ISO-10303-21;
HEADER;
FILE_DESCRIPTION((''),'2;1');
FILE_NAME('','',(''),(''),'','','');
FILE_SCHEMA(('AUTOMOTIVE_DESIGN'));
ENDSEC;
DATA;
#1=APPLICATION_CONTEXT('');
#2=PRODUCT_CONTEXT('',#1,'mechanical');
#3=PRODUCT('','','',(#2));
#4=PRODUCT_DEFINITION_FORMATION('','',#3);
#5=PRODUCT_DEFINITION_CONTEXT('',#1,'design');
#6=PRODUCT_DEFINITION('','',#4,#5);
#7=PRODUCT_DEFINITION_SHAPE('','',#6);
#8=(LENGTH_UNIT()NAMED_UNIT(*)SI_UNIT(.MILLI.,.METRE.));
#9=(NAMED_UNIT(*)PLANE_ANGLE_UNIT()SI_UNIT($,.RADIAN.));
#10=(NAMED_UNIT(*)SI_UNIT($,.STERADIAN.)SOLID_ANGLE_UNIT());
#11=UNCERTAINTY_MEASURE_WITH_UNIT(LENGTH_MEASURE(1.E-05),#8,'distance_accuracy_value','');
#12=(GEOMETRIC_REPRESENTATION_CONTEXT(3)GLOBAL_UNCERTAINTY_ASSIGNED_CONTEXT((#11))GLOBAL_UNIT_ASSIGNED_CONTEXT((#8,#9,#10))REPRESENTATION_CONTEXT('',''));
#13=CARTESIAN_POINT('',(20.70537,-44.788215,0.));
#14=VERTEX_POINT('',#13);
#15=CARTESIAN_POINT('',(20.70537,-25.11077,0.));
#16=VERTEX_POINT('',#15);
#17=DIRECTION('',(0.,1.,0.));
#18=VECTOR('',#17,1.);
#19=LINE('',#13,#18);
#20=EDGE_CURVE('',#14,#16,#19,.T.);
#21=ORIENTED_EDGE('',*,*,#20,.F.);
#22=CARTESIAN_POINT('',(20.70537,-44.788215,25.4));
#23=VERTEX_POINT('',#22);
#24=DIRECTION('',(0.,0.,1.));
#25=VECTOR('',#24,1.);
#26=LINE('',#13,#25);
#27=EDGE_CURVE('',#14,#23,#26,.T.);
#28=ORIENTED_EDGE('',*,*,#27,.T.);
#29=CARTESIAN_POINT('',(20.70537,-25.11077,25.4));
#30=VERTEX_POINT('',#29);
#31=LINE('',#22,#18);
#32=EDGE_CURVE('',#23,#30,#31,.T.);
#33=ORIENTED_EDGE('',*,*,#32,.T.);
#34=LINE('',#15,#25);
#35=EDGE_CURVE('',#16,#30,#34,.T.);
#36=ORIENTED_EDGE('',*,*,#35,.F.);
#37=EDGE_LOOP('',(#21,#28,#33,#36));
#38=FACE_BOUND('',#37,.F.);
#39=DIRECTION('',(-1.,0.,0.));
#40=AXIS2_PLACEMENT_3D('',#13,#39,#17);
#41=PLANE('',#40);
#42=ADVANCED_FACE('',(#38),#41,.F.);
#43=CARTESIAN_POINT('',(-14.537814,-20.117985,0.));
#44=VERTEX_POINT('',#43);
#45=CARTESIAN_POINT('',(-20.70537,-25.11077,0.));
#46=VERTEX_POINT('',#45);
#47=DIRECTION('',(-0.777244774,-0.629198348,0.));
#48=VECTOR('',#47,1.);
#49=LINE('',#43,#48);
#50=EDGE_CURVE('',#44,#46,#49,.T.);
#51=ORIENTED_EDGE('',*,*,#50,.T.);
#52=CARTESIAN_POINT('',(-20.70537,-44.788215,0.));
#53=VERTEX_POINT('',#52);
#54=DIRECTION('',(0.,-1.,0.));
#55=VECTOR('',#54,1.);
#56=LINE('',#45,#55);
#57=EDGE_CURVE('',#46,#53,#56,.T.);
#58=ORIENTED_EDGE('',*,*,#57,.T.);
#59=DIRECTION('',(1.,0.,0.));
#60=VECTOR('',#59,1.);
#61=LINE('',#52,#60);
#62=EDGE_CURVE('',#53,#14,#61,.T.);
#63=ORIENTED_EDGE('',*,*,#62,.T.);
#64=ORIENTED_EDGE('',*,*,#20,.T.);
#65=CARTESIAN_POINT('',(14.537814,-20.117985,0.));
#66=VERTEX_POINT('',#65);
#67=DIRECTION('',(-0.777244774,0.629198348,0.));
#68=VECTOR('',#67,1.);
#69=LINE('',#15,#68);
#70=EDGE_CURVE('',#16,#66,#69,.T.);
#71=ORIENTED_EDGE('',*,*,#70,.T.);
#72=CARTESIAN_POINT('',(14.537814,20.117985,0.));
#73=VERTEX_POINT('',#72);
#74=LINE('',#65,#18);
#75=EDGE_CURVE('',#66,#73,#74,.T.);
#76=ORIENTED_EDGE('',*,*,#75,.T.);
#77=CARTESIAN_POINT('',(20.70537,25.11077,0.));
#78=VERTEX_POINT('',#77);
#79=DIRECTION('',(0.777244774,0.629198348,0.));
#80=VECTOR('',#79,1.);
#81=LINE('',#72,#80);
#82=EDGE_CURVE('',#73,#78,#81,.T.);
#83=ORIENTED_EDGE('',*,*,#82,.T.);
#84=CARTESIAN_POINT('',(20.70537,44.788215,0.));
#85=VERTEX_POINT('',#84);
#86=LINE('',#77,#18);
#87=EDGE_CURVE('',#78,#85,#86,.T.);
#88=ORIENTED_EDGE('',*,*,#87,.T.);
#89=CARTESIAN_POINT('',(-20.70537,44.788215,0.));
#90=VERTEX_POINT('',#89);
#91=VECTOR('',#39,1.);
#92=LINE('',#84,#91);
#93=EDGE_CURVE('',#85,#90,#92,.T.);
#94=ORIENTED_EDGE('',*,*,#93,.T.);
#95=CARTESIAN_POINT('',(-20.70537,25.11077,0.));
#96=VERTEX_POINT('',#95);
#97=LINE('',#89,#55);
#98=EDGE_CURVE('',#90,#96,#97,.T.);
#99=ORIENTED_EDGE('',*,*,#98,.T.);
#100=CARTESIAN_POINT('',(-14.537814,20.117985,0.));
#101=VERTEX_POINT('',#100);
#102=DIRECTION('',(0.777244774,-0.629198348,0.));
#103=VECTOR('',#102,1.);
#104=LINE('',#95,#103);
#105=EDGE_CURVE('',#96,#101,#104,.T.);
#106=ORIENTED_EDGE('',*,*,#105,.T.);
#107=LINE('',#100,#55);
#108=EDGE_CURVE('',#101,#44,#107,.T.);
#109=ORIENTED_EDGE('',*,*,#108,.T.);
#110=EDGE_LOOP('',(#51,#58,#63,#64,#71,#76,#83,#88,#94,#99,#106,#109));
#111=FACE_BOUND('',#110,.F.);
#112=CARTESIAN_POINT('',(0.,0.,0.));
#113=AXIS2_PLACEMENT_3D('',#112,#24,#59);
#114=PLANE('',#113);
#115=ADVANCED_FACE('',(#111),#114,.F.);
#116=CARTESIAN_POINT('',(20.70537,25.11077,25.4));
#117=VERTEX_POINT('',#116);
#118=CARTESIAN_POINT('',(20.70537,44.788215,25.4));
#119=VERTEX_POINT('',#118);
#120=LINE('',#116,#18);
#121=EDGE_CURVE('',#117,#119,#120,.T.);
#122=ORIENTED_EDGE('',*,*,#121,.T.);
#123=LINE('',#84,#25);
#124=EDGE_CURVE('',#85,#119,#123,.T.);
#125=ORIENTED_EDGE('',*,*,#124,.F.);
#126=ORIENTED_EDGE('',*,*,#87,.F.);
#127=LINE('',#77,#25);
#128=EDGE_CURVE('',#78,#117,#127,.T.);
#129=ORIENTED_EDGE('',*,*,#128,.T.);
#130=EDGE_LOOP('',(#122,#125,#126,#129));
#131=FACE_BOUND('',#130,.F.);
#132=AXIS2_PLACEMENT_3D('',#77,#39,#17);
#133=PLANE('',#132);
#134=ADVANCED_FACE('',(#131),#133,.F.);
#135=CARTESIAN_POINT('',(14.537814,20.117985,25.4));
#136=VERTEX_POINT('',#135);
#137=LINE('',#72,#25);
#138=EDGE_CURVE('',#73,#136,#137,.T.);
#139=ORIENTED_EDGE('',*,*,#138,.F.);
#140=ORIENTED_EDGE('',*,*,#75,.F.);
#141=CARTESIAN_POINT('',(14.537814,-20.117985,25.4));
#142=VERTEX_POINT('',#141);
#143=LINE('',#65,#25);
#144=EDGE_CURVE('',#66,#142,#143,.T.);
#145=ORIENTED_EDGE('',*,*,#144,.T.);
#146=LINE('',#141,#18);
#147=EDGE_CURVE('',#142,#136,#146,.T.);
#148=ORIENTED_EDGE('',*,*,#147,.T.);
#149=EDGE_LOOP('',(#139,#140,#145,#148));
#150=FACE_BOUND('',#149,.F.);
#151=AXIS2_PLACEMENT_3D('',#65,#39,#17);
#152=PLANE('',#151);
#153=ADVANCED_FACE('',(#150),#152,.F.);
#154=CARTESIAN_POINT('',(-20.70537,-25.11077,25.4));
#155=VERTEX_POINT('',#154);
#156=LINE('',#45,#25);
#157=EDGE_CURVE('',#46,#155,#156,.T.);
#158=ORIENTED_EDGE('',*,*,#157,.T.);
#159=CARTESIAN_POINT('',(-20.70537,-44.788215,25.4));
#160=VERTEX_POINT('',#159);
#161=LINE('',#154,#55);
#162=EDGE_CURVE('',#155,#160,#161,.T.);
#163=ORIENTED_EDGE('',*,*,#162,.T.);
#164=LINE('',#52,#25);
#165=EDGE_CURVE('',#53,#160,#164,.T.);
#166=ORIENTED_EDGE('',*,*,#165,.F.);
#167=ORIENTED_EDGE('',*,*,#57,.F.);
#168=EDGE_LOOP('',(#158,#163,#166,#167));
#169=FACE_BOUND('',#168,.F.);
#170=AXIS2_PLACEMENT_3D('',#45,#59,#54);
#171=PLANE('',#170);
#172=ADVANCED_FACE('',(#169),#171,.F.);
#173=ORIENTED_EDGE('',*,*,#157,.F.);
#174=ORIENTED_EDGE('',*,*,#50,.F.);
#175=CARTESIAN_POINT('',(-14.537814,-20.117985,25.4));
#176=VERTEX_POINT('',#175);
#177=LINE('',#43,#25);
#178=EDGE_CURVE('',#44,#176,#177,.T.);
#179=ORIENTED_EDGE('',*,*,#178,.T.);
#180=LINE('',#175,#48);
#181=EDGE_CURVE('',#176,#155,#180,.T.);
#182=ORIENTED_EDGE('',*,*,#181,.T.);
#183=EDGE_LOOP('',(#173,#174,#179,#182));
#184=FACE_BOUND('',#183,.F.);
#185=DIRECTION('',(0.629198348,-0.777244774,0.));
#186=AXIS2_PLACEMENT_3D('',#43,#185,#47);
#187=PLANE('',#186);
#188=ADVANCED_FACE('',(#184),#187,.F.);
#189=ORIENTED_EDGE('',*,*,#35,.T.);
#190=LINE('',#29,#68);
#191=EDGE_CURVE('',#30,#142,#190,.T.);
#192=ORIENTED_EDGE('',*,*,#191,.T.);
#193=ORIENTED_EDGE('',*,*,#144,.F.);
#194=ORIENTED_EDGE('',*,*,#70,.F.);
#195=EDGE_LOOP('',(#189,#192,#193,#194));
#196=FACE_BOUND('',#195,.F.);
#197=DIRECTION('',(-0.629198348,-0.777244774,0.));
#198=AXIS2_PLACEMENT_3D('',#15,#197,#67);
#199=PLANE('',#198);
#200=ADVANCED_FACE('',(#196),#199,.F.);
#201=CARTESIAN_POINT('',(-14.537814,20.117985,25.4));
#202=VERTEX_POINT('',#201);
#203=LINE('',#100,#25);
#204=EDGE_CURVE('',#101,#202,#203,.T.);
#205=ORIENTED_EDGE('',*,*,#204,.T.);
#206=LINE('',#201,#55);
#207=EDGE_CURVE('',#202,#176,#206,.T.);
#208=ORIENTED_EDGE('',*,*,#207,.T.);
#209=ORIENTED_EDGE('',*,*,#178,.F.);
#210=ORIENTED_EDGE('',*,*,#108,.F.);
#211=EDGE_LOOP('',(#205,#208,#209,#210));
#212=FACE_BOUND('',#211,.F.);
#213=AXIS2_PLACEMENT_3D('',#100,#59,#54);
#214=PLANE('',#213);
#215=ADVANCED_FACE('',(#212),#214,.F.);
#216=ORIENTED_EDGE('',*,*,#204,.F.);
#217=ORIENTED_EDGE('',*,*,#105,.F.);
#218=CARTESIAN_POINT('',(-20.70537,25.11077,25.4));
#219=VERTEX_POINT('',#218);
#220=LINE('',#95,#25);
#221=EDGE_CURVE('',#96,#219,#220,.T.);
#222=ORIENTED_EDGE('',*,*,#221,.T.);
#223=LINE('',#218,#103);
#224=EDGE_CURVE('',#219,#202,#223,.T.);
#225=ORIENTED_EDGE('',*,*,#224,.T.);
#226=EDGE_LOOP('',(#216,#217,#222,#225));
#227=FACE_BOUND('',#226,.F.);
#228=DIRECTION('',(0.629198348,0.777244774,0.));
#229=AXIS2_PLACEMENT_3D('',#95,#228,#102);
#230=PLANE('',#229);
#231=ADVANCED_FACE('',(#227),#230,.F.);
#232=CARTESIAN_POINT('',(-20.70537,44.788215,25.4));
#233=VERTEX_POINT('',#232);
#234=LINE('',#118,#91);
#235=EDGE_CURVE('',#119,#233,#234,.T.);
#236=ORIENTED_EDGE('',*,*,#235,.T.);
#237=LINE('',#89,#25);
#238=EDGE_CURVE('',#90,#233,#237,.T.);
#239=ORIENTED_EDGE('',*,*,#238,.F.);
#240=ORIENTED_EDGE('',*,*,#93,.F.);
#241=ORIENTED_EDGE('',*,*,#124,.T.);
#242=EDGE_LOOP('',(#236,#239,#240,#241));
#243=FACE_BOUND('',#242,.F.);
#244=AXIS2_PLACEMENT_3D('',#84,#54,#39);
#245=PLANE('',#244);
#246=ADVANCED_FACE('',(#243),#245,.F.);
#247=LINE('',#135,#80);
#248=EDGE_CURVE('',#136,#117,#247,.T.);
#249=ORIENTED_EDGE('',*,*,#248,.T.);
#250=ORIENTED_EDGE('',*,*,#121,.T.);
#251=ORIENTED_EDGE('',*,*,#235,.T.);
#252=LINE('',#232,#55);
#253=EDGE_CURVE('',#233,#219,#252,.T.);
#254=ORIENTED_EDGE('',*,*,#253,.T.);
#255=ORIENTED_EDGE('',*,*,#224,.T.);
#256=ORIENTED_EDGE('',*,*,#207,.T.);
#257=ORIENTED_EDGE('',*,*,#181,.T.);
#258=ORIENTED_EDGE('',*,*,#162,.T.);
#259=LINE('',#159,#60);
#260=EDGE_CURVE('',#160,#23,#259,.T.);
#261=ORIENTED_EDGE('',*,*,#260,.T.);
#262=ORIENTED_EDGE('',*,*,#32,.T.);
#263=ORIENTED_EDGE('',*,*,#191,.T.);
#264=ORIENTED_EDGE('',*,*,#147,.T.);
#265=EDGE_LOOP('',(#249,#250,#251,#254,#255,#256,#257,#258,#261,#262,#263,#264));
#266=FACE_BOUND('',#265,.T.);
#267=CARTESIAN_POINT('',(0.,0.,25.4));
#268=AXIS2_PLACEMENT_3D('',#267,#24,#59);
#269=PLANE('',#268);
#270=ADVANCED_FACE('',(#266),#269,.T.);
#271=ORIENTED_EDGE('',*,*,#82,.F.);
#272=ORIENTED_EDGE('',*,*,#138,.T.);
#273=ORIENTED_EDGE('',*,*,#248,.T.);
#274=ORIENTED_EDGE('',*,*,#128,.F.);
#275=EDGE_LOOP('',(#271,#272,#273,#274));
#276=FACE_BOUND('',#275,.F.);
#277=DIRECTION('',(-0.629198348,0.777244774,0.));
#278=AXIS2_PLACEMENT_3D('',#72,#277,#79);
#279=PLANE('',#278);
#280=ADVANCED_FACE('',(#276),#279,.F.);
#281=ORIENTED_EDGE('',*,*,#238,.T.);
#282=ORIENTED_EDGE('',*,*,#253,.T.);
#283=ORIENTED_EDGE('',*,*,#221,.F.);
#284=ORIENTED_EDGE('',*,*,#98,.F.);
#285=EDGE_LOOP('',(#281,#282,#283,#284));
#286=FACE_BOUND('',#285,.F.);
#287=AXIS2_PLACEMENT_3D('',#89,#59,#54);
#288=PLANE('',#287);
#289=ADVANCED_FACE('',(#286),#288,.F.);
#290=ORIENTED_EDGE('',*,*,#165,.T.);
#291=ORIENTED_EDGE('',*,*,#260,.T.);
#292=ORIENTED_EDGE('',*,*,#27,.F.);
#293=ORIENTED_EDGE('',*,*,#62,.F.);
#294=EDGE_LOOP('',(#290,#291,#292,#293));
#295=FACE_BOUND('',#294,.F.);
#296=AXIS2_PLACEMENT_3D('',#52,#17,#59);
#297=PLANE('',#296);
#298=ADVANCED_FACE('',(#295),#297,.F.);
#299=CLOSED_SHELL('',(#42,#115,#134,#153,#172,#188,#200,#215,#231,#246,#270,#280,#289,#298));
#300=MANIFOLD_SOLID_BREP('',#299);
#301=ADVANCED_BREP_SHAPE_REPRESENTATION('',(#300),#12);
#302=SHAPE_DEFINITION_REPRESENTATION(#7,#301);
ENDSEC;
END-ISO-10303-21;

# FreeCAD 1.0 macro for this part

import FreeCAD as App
import Part
import Sketcher

V = App.Vector


def add_polygon(sketch, points):
    """Adds a closed chain of lines whose ends are joined by coincident constraints."""
    first, n = sketch.GeometryCount, len(points)
    for a, b in zip(points, points[1:] + points[:1]):
        sketch.addGeometry(Part.LineSegment(App.Vector(*a, 0), App.Vector(*b, 0)), False)
    for i in range(n):
        sketch.addConstraint(Sketcher.Constraint("Coincident", first + i, 2, first + (i + 1) % n, 1))

doc = App.newDocument("Part")
params = doc.addObject("Spreadsheet::Sheet", "Params")
for row, (alias, value) in enumerate([
    ("pad1_length", "1 in"),
], start=1):
    params.set(f"A{row}", alias)
    params.set(f"B{row}", "=" + value)
    params.setAlias(f"B{row}", alias)

body = doc.addObject("PartDesign::Body", "Body")

# Sketch on XY plane
sketch1 = body.newObject("Sketcher::SketchObject", "Sketch")
sketch1.AttachmentSupport = (doc.getObject("XY_Plane"), [""])
sketch1.MapMode = "FlatFace"
add_polygon(sketch1, [(-15, 20), (-15, -20), (-21, -25), (-21, -45), (21, -45), (21, -25), (15, -20), (15, 20), (21, 25), (21, 45), (-21, 45), (-21, 25)])  # lines 0-11
sketch1.addConstraint(Sketcher.Constraint("Vertical", 0))
sketch1.addConstraint(Sketcher.Constraint("Vertical", 2))
sketch1.addConstraint(Sketcher.Constraint("Horizontal", 3))
sketch1.addConstraint(Sketcher.Constraint("Vertical", 4))
sketch1.addConstraint(Sketcher.Constraint("Vertical", 6))
sketch1.addConstraint(Sketcher.Constraint("Vertical", 8))
sketch1.addConstraint(Sketcher.Constraint("Horizontal", 9))
sketch1.addConstraint(Sketcher.Constraint("Vertical", 10))
sketch1.addConstraint(Sketcher.Constraint("Symmetric", 0, 2, 6, 2, -1, 1))
sketch1.addConstraint(Sketcher.Constraint("Symmetric", 1, 2, 7, 2, -1, 1))
sketch1.addConstraint(Sketcher.Constraint("Symmetric", 3, 2, 9, 2, -1, 1))
sketch1.addConstraint(Sketcher.Constraint("Symmetric", 1, 2, 4, 2, -2))
sketch1.addConstraint(Sketcher.Constraint("Parallel", 5, 11))
sketch1.addConstraint(Sketcher.Constraint("Horizontal", 0, 2, 5, 2))
sketch1.addConstraint(Sketcher.Constraint("Horizontal", 7, 2, 10, 2))
sketch1.addConstraint(Sketcher.Constraint("DistanceX", 3, 1, 3, 2, 41.41074))
sketch1.addConstraint(Sketcher.Constraint("DistanceY", 0, 2, 0, 1, 40.23597))
sketch1.addConstraint(Sketcher.Constraint("DistanceY", 3, 2, 6, 2, 64.9062))
sketch1.addConstraint(Sketcher.Constraint("DistanceY", 2, 2, 2, 1, 19.677445))
sketch1.addConstraint(Sketcher.Constraint("Distance", 1, 7.935153))
pad1 = body.newObject("PartDesign::Pad", "Pad")
pad1.Profile = sketch1
pad1.setExpression("Length", "Params.pad1_length")

doc.recompute()
